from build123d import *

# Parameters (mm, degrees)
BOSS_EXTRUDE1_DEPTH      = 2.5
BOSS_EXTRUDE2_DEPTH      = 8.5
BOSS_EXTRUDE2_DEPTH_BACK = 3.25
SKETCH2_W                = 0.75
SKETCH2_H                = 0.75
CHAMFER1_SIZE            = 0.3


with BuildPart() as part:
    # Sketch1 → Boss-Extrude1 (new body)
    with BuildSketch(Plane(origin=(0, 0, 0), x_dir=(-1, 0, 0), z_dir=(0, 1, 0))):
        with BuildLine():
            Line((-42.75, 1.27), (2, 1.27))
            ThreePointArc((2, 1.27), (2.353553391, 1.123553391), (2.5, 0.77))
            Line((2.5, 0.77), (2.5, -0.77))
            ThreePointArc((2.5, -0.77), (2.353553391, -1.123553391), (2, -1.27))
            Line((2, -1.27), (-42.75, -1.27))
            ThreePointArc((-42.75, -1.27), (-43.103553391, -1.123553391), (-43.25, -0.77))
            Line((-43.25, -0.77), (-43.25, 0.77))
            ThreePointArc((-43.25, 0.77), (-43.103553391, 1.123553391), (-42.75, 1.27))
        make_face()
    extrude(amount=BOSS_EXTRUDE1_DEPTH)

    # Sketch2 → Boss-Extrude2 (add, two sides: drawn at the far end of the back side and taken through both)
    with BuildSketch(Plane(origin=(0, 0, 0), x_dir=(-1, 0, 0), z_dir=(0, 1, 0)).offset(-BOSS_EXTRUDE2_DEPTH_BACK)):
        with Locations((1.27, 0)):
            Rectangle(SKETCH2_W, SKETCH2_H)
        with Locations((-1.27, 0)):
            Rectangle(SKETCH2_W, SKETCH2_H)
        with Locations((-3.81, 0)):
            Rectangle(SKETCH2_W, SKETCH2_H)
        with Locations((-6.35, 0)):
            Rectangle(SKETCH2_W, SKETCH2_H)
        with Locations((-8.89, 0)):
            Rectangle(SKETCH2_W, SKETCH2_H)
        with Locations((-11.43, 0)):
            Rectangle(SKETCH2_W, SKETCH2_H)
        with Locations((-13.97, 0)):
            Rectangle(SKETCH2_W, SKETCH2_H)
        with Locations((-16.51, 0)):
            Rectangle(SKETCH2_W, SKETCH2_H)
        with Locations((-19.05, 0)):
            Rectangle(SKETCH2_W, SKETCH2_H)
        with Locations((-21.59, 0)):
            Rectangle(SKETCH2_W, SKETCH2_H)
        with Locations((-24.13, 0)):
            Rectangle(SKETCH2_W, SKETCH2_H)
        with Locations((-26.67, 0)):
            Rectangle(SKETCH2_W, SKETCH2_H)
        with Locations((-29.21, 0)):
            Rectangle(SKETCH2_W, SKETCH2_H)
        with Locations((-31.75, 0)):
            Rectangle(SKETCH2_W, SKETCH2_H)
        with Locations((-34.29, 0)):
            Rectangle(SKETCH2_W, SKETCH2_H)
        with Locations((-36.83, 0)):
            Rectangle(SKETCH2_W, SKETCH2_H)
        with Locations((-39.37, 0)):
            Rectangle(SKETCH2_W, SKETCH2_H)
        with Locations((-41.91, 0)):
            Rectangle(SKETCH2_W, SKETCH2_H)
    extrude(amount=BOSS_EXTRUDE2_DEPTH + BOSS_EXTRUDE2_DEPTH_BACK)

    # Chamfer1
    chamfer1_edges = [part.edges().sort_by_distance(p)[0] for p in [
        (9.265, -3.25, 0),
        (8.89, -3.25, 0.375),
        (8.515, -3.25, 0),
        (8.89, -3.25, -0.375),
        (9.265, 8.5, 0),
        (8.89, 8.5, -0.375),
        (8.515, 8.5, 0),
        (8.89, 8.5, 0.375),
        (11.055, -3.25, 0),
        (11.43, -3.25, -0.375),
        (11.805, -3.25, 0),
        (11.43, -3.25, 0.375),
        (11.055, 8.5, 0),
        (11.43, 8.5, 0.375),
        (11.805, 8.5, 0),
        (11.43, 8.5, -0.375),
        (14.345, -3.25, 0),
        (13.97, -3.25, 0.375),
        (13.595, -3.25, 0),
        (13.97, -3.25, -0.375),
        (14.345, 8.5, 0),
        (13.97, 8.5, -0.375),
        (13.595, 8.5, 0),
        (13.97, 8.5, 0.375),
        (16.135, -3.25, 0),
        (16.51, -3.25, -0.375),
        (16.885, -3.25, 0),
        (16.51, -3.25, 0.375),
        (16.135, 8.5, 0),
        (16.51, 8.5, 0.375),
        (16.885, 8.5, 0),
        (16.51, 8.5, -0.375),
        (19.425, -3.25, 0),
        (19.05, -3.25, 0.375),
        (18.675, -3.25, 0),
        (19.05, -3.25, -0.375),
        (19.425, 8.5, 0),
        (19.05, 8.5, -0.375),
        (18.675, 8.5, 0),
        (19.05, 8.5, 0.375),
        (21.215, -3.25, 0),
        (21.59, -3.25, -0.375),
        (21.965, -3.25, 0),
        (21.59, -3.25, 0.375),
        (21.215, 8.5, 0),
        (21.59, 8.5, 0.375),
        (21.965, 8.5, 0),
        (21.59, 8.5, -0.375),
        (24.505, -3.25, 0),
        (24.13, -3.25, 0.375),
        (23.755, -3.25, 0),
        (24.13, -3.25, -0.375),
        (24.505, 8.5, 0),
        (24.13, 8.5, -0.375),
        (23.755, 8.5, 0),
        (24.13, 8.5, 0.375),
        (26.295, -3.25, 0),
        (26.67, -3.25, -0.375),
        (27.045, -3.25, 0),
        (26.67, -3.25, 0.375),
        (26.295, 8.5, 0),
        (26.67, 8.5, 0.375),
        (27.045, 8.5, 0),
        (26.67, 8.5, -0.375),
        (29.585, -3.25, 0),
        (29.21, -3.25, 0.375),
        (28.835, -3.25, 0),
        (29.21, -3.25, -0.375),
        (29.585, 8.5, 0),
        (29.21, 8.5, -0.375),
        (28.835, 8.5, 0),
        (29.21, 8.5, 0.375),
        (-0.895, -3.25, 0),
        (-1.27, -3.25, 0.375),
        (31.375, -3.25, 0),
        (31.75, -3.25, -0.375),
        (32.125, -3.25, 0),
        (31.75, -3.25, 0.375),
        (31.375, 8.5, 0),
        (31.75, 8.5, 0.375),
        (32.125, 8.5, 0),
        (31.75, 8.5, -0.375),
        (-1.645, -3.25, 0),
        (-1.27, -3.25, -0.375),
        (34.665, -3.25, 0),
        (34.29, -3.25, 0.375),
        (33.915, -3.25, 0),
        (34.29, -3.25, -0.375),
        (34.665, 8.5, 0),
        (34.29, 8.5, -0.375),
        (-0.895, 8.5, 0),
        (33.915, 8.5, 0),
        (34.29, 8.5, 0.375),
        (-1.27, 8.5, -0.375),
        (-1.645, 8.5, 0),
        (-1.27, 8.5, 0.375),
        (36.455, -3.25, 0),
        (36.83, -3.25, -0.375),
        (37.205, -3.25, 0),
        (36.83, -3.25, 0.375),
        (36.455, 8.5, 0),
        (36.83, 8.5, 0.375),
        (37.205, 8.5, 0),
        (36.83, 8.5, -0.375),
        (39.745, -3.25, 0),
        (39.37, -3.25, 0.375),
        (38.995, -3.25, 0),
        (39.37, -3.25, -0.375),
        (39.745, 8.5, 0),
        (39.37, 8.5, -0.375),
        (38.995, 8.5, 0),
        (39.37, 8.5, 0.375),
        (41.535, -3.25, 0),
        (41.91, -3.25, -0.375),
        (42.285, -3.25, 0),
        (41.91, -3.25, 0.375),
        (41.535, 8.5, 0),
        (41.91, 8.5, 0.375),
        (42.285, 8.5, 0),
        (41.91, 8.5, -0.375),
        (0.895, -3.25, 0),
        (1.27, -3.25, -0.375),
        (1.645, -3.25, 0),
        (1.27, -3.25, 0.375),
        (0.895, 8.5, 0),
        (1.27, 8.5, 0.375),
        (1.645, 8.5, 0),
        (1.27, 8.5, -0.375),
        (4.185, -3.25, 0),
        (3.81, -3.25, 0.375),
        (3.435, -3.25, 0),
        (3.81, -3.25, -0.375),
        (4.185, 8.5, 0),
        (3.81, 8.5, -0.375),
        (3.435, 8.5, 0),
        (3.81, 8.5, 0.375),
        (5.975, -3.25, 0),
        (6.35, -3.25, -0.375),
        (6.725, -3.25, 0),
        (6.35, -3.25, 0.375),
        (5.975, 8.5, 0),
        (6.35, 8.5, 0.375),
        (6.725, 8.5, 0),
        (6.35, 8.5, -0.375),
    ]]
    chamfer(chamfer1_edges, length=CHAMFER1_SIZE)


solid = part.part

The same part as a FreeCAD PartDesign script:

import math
import FreeCAD as App
import Part
import Sketcher

V = App.Vector
Q = App.Units.Quantity


def edges_at(feature, points):
    """Names of the edges that pass closest to the given points."""
    edges = feature.Shape.Edges
    near = lambda p: min(range(len(edges)), key=lambda i: edges[i].distToShape(Part.Vertex(*p))[0])
    return sorted({f"Edge{near(p) + 1}" for p in points})

doc = App.newDocument("Part")
body = doc.addObject("PartDesign::Body", "Body")

# Sketch on XZ plane
sketch1 = doc.addObject("Sketcher::SketchObject", "Sketch")
body.addObject(sketch1)
sketch1.AttachmentSupport = (doc.XZ_Plane, [""])
sketch1.MapMode = "FlatFace"
sketch1.addGeometry(Part.LineSegment(V(-2, 1.27, 0), V(42.75, 1.27, 0)), False)
sketch1.addGeometry(Part.ArcOfCircle(Part.Circle(V(42.75, 0.77, 0), V(0, 0, 1), 0.5), math.radians(0), math.radians(90)), False)
sketch1.addGeometry(Part.LineSegment(V(43.25, 0.77, 0), V(43.25, -0.77, 0)), False)
sketch1.addGeometry(Part.ArcOfCircle(Part.Circle(V(42.75, -0.77, 0), V(0, 0, 1), 0.5), math.radians(-90), math.radians(0)), False)
sketch1.addGeometry(Part.LineSegment(V(42.75, -1.27, 0), V(-2, -1.27, 0)), False)
sketch1.addGeometry(Part.ArcOfCircle(Part.Circle(V(-2, -0.77, 0), V(0, 0, 1), 0.5), math.radians(180), math.radians(270)), False)
sketch1.addGeometry(Part.LineSegment(V(-2.5, -0.77, 0), V(-2.5, 0.77, 0)), False)
sketch1.addGeometry(Part.ArcOfCircle(Part.Circle(V(-2, 0.77, 0), V(0, 0, 1), 0.5), math.radians(90), math.radians(180)), False)
sketch1.addConstraint(Sketcher.Constraint("Tangent", 0, 2, 1, 2))
sketch1.addConstraint(Sketcher.Constraint("Tangent", 1, 1, 2, 1))
sketch1.addConstraint(Sketcher.Constraint("Tangent", 2, 2, 3, 2))
sketch1.addConstraint(Sketcher.Constraint("Tangent", 3, 1, 4, 1))
sketch1.addConstraint(Sketcher.Constraint("Tangent", 4, 2, 5, 2))
sketch1.addConstraint(Sketcher.Constraint("Tangent", 5, 1, 6, 1))
sketch1.addConstraint(Sketcher.Constraint("Tangent", 6, 2, 7, 2))
sketch1.addConstraint(Sketcher.Constraint("Tangent", 7, 1, 0, 1))
sketch1.addConstraint(Sketcher.Constraint("Horizontal", 0))
sketch1.addConstraint(Sketcher.Constraint("Vertical", 2))
sketch1.addConstraint(Sketcher.Constraint("Horizontal", 4))
sketch1.addConstraint(Sketcher.Constraint("Vertical", 6))
sketch1.addConstraint(Sketcher.Constraint("Equal", 1, 3))
sketch1.addConstraint(Sketcher.Constraint("Equal", 3, 5))
sketch1.addConstraint(Sketcher.Constraint("Equal", 5, 7))
sketch1.addConstraint(Sketcher.Constraint("Radius", 1, Q("0.5 mm")))
sketch1.addConstraint(Sketcher.Constraint("DistanceX", 5, 3, -1, 1, Q("2 mm")))
sketch1.addConstraint(Sketcher.Constraint("DistanceX", 0, 1, 0, 2, Q("44.75 mm")))
sketch1.addConstraint(Sketcher.Constraint("DistanceY", 2, 2, 2, 1, Q("1.54 mm")))
sketch1.addConstraint(Sketcher.Constraint("DistanceY", -1, 1, 1, 3, Q("0.77 mm")))
pad1 = doc.addObject("PartDesign::Pad", "Pad")
body.addObject(pad1)
pad1.Profile = sketch1
pad1.Length = 2.5
pad1.Reversed = True

# Sketch on XZ plane
sketch2 = doc.addObject("Sketcher::SketchObject", "Sketch001")
body.addObject(sketch2)
sketch2.AttachmentSupport = (doc.XZ_Plane, [""])
sketch2.MapMode = "FlatFace"
sketch2.addGeometry(Part.LineSegment(V(-0.895, 0.375, 0), V(-0.895, -0.375, 0)), False)
sketch2.addGeometry(Part.LineSegment(V(-0.895, -0.375, 0), V(-1.645, -0.375, 0)), False)
sketch2.addGeometry(Part.LineSegment(V(-1.645, -0.375, 0), V(-1.645, 0.375, 0)), False)
sketch2.addGeometry(Part.LineSegment(V(-1.645, 0.375, 0), V(-0.895, 0.375, 0)), False)
sketch2.addGeometry(Part.LineSegment(V(1.645, 0.375, 0), V(1.645, -0.375, 0)), False)
sketch2.addGeometry(Part.LineSegment(V(1.645, -0.375, 0), V(0.895, -0.375, 0)), False)
sketch2.addGeometry(Part.LineSegment(V(0.895, -0.375, 0), V(0.895, 0.375, 0)), False)
sketch2.addGeometry(Part.LineSegment(V(0.895, 0.375, 0), V(1.645, 0.375, 0)), False)
sketch2.addGeometry(Part.LineSegment(V(4.185, 0.375, 0), V(4.185, -0.375, 0)), False)
sketch2.addGeometry(Part.LineSegment(V(4.185, -0.375, 0), V(3.435, -0.375, 0)), False)
sketch2.addGeometry(Part.LineSegment(V(3.435, -0.375, 0), V(3.435, 0.375, 0)), False)
sketch2.addGeometry(Part.LineSegment(V(3.435, 0.375, 0), V(4.185, 0.375, 0)), False)
sketch2.addGeometry(Part.LineSegment(V(6.725, 0.375, 0), V(6.725, -0.375, 0)), False)
sketch2.addGeometry(Part.LineSegment(V(6.725, -0.375, 0), V(5.975, -0.375, 0)), False)
sketch2.addGeometry(Part.LineSegment(V(5.975, -0.375, 0), V(5.975, 0.375, 0)), False)
sketch2.addGeometry(Part.LineSegment(V(5.975, 0.375, 0), V(6.725, 0.375, 0)), False)
sketch2.addGeometry(Part.LineSegment(V(9.265, 0.375, 0), V(9.265, -0.375, 0)), False)
sketch2.addGeometry(Part.LineSegment(V(9.265, -0.375, 0), V(8.515, -0.375, 0)), False)
sketch2.addGeometry(Part.LineSegment(V(8.515, -0.375, 0), V(8.515, 0.375, 0)), False)
sketch2.addGeometry(Part.LineSegment(V(8.515, 0.375, 0), V(9.265, 0.375, 0)), False)
sketch2.addGeometry(Part.LineSegment(V(11.805, 0.375, 0), V(11.805, -0.375, 0)), False)
sketch2.addGeometry(Part.LineSegment(V(11.805, -0.375, 0), V(11.055, -0.375, 0)), False)
sketch2.addGeometry(Part.LineSegment(V(11.055, -0.375, 0), V(11.055, 0.375, 0)), False)
sketch2.addGeometry(Part.LineSegment(V(11.055, 0.375, 0), V(11.805, 0.375, 0)), False)
sketch2.addGeometry(Part.LineSegment(V(14.345, 0.375, 0), V(14.345, -0.375, 0)), False)
sketch2.addGeometry(Part.LineSegment(V(14.345, -0.375, 0), V(13.595, -0.375, 0)), False)
sketch2.addGeometry(Part.LineSegment(V(13.595, -0.375, 0), V(13.595, 0.375, 0)), False)
sketch2.addGeometry(Part.LineSegment(V(13.595, 0.375, 0), V(14.345, 0.375, 0)), False)
sketch2.addGeometry(Part.LineSegment(V(16.885, 0.375, 0), V(16.885, -0.375, 0)), False)
sketch2.addGeometry(Part.LineSegment(V(16.885, -0.375, 0), V(16.135, -0.375, 0)), False)
sketch2.addGeometry(Part.LineSegment(V(16.135, -0.375, 0), V(16.135, 0.375, 0)), False)
sketch2.addGeometry(Part.LineSegment(V(16.135, 0.375, 0), V(16.885, 0.375, 0)), False)
sketch2.addGeometry(Part.LineSegment(V(19.425, 0.375, 0), V(19.425, -0.375, 0)), False)
sketch2.addGeometry(Part.LineSegment(V(19.425, -0.375, 0), V(18.675, -0.375, 0)), False)
sketch2.addGeometry(Part.LineSegment(V(18.675, -0.375, 0), V(18.675, 0.375, 0)), False)
sketch2.addGeometry(Part.LineSegment(V(18.675, 0.375, 0), V(19.425, 0.375, 0)), False)
sketch2.addGeometry(Part.LineSegment(V(21.965, 0.375, 0), V(21.965, -0.375, 0)), False)
sketch2.addGeometry(Part.LineSegment(V(21.965, -0.375, 0), V(21.215, -0.375, 0)), False)
sketch2.addGeometry(Part.LineSegment(V(21.215, -0.375, 0), V(21.215, 0.375, 0)), False)
sketch2.addGeometry(Part.LineSegment(V(21.215, 0.375, 0), V(21.965, 0.375, 0)), False)
sketch2.addGeometry(Part.LineSegment(V(24.505, 0.375, 0), V(24.505, -0.375, 0)), False)
sketch2.addGeometry(Part.LineSegment(V(24.505, -0.375, 0), V(23.755, -0.375, 0)), False)
sketch2.addGeometry(Part.LineSegment(V(23.755, -0.375, 0), V(23.755, 0.375, 0)), False)
sketch2.addGeometry(Part.LineSegment(V(23.755, 0.375, 0), V(24.505, 0.375, 0)), False)
sketch2.addGeometry(Part.LineSegment(V(27.045, 0.375, 0), V(27.045, -0.375, 0)), False)
sketch2.addGeometry(Part.LineSegment(V(27.045, -0.375, 0), V(26.295, -0.375, 0)), False)
sketch2.addGeometry(Part.LineSegment(V(26.295, -0.375, 0), V(26.295, 0.375, 0)), False)
sketch2.addGeometry(Part.LineSegment(V(26.295, 0.375, 0), V(27.045, 0.375, 0)), False)
sketch2.addGeometry(Part.LineSegment(V(29.585, 0.375, 0), V(29.585, -0.375, 0)), False)
sketch2.addGeometry(Part.LineSegment(V(29.585, -0.375, 0), V(28.835, -0.375, 0)), False)
sketch2.addGeometry(Part.LineSegment(V(28.835, -0.375, 0), V(28.835, 0.375, 0)), False)
sketch2.addGeometry(Part.LineSegment(V(28.835, 0.375, 0), V(29.585, 0.375, 0)), False)
sketch2.addGeometry(Part.LineSegment(V(32.125, 0.375, 0), V(32.125, -0.375, 0)), False)
sketch2.addGeometry(Part.LineSegment(V(32.125, -0.375, 0), V(31.375, -0.375, 0)), False)
sketch2.addGeometry(Part.LineSegment(V(31.375, -0.375, 0), V(31.375, 0.375, 0)), False)
sketch2.addGeometry(Part.LineSegment(V(31.375, 0.375, 0), V(32.125, 0.375, 0)), False)
sketch2.addGeometry(Part.LineSegment(V(34.665, 0.375, 0), V(34.665, -0.375, 0)), False)
sketch2.addGeometry(Part.LineSegment(V(34.665, -0.375, 0), V(33.915, -0.375, 0)), False)
sketch2.addGeometry(Part.LineSegment(V(33.915, -0.375, 0), V(33.915, 0.375, 0)), False)
sketch2.addGeometry(Part.LineSegment(V(33.915, 0.375, 0), V(34.665, 0.375, 0)), False)
sketch2.addGeometry(Part.LineSegment(V(37.205, 0.375, 0), V(37.205, -0.375, 0)), False)
sketch2.addGeometry(Part.LineSegment(V(37.205, -0.375, 0), V(36.455, -0.375, 0)), False)
sketch2.addGeometry(Part.LineSegment(V(36.455, -0.375, 0), V(36.455, 0.375, 0)), False)
sketch2.addGeometry(Part.LineSegment(V(36.455, 0.375, 0), V(37.205, 0.375, 0)), False)
sketch2.addGeometry(Part.LineSegment(V(39.745, 0.375, 0), V(39.745, -0.375, 0)), False)
sketch2.addGeometry(Part.LineSegment(V(39.745, -0.375, 0), V(38.995, -0.375, 0)), False)
sketch2.addGeometry(Part.LineSegment(V(38.995, -0.375, 0), V(38.995, 0.375, 0)), False)
sketch2.addGeometry(Part.LineSegment(V(38.995, 0.375, 0), V(39.745, 0.375, 0)), False)
sketch2.addGeometry(Part.LineSegment(V(42.285, 0.375, 0), V(42.285, -0.375, 0)), False)
sketch2.addGeometry(Part.LineSegment(V(42.285, -0.375, 0), V(41.535, -0.375, 0)), False)
sketch2.addGeometry(Part.LineSegment(V(41.535, -0.375, 0), V(41.535, 0.375, 0)), False)
sketch2.addGeometry(Part.LineSegment(V(41.535, 0.375, 0), V(42.285, 0.375, 0)), False)
sketch2.addConstraint(Sketcher.Constraint("Coincident", 0, 2, 1, 1))
sketch2.addConstraint(Sketcher.Constraint("Coincident", 1, 2, 2, 1))
sketch2.addConstraint(Sketcher.Constraint("Coincident", 2, 2, 3, 1))
sketch2.addConstraint(Sketcher.Constraint("Coincident", 3, 2, 0, 1))
sketch2.addConstraint(Sketcher.Constraint("Coincident", 4, 2, 5, 1))
sketch2.addConstraint(Sketcher.Constraint("Coincident", 5, 2, 6, 1))
sketch2.addConstraint(Sketcher.Constraint("Coincident", 6, 2, 7, 1))
sketch2.addConstraint(Sketcher.Constraint("Coincident", 7, 2, 4, 1))
sketch2.addConstraint(Sketcher.Constraint("Coincident", 8, 2, 9, 1))
sketch2.addConstraint(Sketcher.Constraint("Coincident", 9, 2, 10, 1))
sketch2.addConstraint(Sketcher.Constraint("Coincident", 10, 2, 11, 1))
sketch2.addConstraint(Sketcher.Constraint("Coincident", 11, 2, 8, 1))
sketch2.addConstraint(Sketcher.Constraint("Coincident", 12, 2, 13, 1))
sketch2.addConstraint(Sketcher.Constraint("Coincident", 13, 2, 14, 1))
sketch2.addConstraint(Sketcher.Constraint("Coincident", 14, 2, 15, 1))
sketch2.addConstraint(Sketcher.Constraint("Coincident", 15, 2, 12, 1))
sketch2.addConstraint(Sketcher.Constraint("Coincident", 16, 2, 17, 1))
sketch2.addConstraint(Sketcher.Constraint("Coincident", 17, 2, 18, 1))
sketch2.addConstraint(Sketcher.Constraint("Coincident", 18, 2, 19, 1))
sketch2.addConstraint(Sketcher.Constraint("Coincident", 19, 2, 16, 1))
sketch2.addConstraint(Sketcher.Constraint("Coincident", 20, 2, 21, 1))
sketch2.addConstraint(Sketcher.Constraint("Coincident", 21, 2, 22, 1))
sketch2.addConstraint(Sketcher.Constraint("Coincident", 22, 2, 23, 1))
sketch2.addConstraint(Sketcher.Constraint("Coincident", 23, 2, 20, 1))
sketch2.addConstraint(Sketcher.Constraint("Coincident", 24, 2, 25, 1))
sketch2.addConstraint(Sketcher.Constraint("Coincident", 25, 2, 26, 1))
sketch2.addConstraint(Sketcher.Constraint("Coincident", 26, 2, 27, 1))
sketch2.addConstraint(Sketcher.Constraint("Coincident", 27, 2, 24, 1))
sketch2.addConstraint(Sketcher.Constraint("Coincident", 28, 2, 29, 1))
sketch2.addConstraint(Sketcher.Constraint("Coincident", 29, 2, 30, 1))
sketch2.addConstraint(Sketcher.Constraint("Coincident", 30, 2, 31, 1))
sketch2.addConstraint(Sketcher.Constraint("Coincident", 31, 2, 28, 1))
sketch2.addConstraint(Sketcher.Constraint("Coincident", 32, 2, 33, 1))
sketch2.addConstraint(Sketcher.Constraint("Coincident", 33, 2, 34, 1))
sketch2.addConstraint(Sketcher.Constraint("Coincident", 34, 2, 35, 1))
sketch2.addConstraint(Sketcher.Constraint("Coincident", 35, 2, 32, 1))
sketch2.addConstraint(Sketcher.Constraint("Coincident", 36, 2, 37, 1))
sketch2.addConstraint(Sketcher.Constraint("Coincident", 37, 2, 38, 1))
sketch2.addConstraint(Sketcher.Constraint("Coincident", 38, 2, 39, 1))
sketch2.addConstraint(Sketcher.Constraint("Coincident", 39, 2, 36, 1))
sketch2.addConstraint(Sketcher.Constraint("Coincident", 40, 2, 41, 1))
sketch2.addConstraint(Sketcher.Constraint("Coincident", 41, 2, 42, 1))
sketch2.addConstraint(Sketcher.Constraint("Coincident", 42, 2, 43, 1))
sketch2.addConstraint(Sketcher.Constraint("Coincident", 43, 2, 40, 1))
sketch2.addConstraint(Sketcher.Constraint("Coincident", 44, 2, 45, 1))
sketch2.addConstraint(Sketcher.Constraint("Coincident", 45, 2, 46, 1))
sketch2.addConstraint(Sketcher.Constraint("Coincident", 46, 2, 47, 1))
sketch2.addConstraint(Sketcher.Constraint("Coincident", 47, 2, 44, 1))
sketch2.addConstraint(Sketcher.Constraint("Coincident", 48, 2, 49, 1))
sketch2.addConstraint(Sketcher.Constraint("Coincident", 49, 2, 50, 1))
sketch2.addConstraint(Sketcher.Constraint("Coincident", 50, 2, 51, 1))
sketch2.addConstraint(Sketcher.Constraint("Coincident", 51, 2, 48, 1))
sketch2.addConstraint(Sketcher.Constraint("Coincident", 52, 2, 53, 1))
sketch2.addConstraint(Sketcher.Constraint("Coincident", 53, 2, 54, 1))
sketch2.addConstraint(Sketcher.Constraint("Coincident", 54, 2, 55, 1))
sketch2.addConstraint(Sketcher.Constraint("Coincident", 55, 2, 52, 1))
sketch2.addConstraint(Sketcher.Constraint("Coincident", 56, 2, 57, 1))
sketch2.addConstraint(Sketcher.Constraint("Coincident", 57, 2, 58, 1))
sketch2.addConstraint(Sketcher.Constraint("Coincident", 58, 2, 59, 1))
sketch2.addConstraint(Sketcher.Constraint("Coincident", 59, 2, 56, 1))
sketch2.addConstraint(Sketcher.Constraint("Coincident", 60, 2, 61, 1))
sketch2.addConstraint(Sketcher.Constraint("Coincident", 61, 2, 62, 1))
sketch2.addConstraint(Sketcher.Constraint("Coincident", 62, 2, 63, 1))
sketch2.addConstraint(Sketcher.Constraint("Coincident", 63, 2, 60, 1))
sketch2.addConstraint(Sketcher.Constraint("Coincident", 64, 2, 65, 1))
sketch2.addConstraint(Sketcher.Constraint("Coincident", 65, 2, 66, 1))
sketch2.addConstraint(Sketcher.Constraint("Coincident", 66, 2, 67, 1))
sketch2.addConstraint(Sketcher.Constraint("Coincident", 67, 2, 64, 1))
sketch2.addConstraint(Sketcher.Constraint("Coincident", 68, 2, 69, 1))
sketch2.addConstraint(Sketcher.Constraint("Coincident", 69, 2, 70, 1))
sketch2.addConstraint(Sketcher.Constraint("Coincident", 70, 2, 71, 1))
sketch2.addConstraint(Sketcher.Constraint("Coincident", 71, 2, 68, 1))
sketch2.addConstraint(Sketcher.Constraint("Vertical", 0))
sketch2.addConstraint(Sketcher.Constraint("Horizontal", 1))
sketch2.addConstraint(Sketcher.Constraint("Vertical", 2))
sketch2.addConstraint(Sketcher.Constraint("Horizontal", 3))
sketch2.addConstraint(Sketcher.Constraint("Vertical", 4))
sketch2.addConstraint(Sketcher.Constraint("Horizontal", 5))
sketch2.addConstraint(Sketcher.Constraint("Vertical", 6))
sketch2.addConstraint(Sketcher.Constraint("Horizontal", 7))
sketch2.addConstraint(Sketcher.Constraint("Vertical", 8))
sketch2.addConstraint(Sketcher.Constraint("Horizontal", 9))
sketch2.addConstraint(Sketcher.Constraint("Vertical", 10))
sketch2.addConstraint(Sketcher.Constraint("Horizontal", 11))
sketch2.addConstraint(Sketcher.Constraint("Vertical", 12))
sketch2.addConstraint(Sketcher.Constraint("Horizontal", 13))
sketch2.addConstraint(Sketcher.Constraint("Vertical", 14))
sketch2.addConstraint(Sketcher.Constraint("Horizontal", 15))
sketch2.addConstraint(Sketcher.Constraint("Vertical", 16))
sketch2.addConstraint(Sketcher.Constraint("Horizontal", 17))
sketch2.addConstraint(Sketcher.Constraint("Vertical", 18))
sketch2.addConstraint(Sketcher.Constraint("Horizontal", 19))
sketch2.addConstraint(Sketcher.Constraint("Vertical", 20))
sketch2.addConstraint(Sketcher.Constraint("Horizontal", 21))
sketch2.addConstraint(Sketcher.Constraint("Vertical", 22))
sketch2.addConstraint(Sketcher.Constraint("Horizontal", 23))
sketch2.addConstraint(Sketcher.Constraint("Vertical", 24))
sketch2.addConstraint(Sketcher.Constraint("Horizontal", 25))
sketch2.addConstraint(Sketcher.Constraint("Vertical", 26))
sketch2.addConstraint(Sketcher.Constraint("Horizontal", 27))
sketch2.addConstraint(Sketcher.Constraint("Vertical", 28))
sketch2.addConstraint(Sketcher.Constraint("Horizontal", 29))
sketch2.addConstraint(Sketcher.Constraint("Vertical", 30))
sketch2.addConstraint(Sketcher.Constraint("Horizontal", 31))
sketch2.addConstraint(Sketcher.Constraint("Vertical", 32))
sketch2.addConstraint(Sketcher.Constraint("Horizontal", 33))
sketch2.addConstraint(Sketcher.Constraint("Vertical", 34))
sketch2.addConstraint(Sketcher.Constraint("Horizontal", 35))
sketch2.addConstraint(Sketcher.Constraint("Vertical", 36))
sketch2.addConstraint(Sketcher.Constraint("Horizontal", 37))
sketch2.addConstraint(Sketcher.Constraint("Vertical", 38))
sketch2.addConstraint(Sketcher.Constraint("Horizontal", 39))
sketch2.addConstraint(Sketcher.Constraint("Vertical", 40))
sketch2.addConstraint(Sketcher.Constraint("Horizontal", 41))
sketch2.addConstraint(Sketcher.Constraint("Vertical", 42))
sketch2.addConstraint(Sketcher.Constraint("Horizontal", 43))
sketch2.addConstraint(Sketcher.Constraint("Vertical", 44))
sketch2.addConstraint(Sketcher.Constraint("Horizontal", 45))
sketch2.addConstraint(Sketcher.Constraint("Vertical", 46))
sketch2.addConstraint(Sketcher.Constraint("Horizontal", 47))
sketch2.addConstraint(Sketcher.Constraint("Vertical", 48))
sketch2.addConstraint(Sketcher.Constraint("Horizontal", 49))
sketch2.addConstraint(Sketcher.Constraint("Vertical", 50))
sketch2.addConstraint(Sketcher.Constraint("Horizontal", 51))
sketch2.addConstraint(Sketcher.Constraint("Vertical", 52))
sketch2.addConstraint(Sketcher.Constraint("Horizontal", 53))
sketch2.addConstraint(Sketcher.Constraint("Vertical", 54))
sketch2.addConstraint(Sketcher.Constraint("Horizontal", 55))
sketch2.addConstraint(Sketcher.Constraint("Vertical", 56))
sketch2.addConstraint(Sketcher.Constraint("Horizontal", 57))
sketch2.addConstraint(Sketcher.Constraint("Vertical", 58))
sketch2.addConstraint(Sketcher.Constraint("Horizontal", 59))
sketch2.addConstraint(Sketcher.Constraint("Vertical", 60))
sketch2.addConstraint(Sketcher.Constraint("Horizontal", 61))
sketch2.addConstraint(Sketcher.Constraint("Vertical", 62))
sketch2.addConstraint(Sketcher.Constraint("Horizontal", 63))
sketch2.addConstraint(Sketcher.Constraint("Vertical", 64))
sketch2.addConstraint(Sketcher.Constraint("Horizontal", 65))
sketch2.addConstraint(Sketcher.Constraint("Vertical", 66))
sketch2.addConstraint(Sketcher.Constraint("Horizontal", 67))
sketch2.addConstraint(Sketcher.Constraint("Vertical", 68))
sketch2.addConstraint(Sketcher.Constraint("Horizontal", 69))
sketch2.addConstraint(Sketcher.Constraint("Vertical", 70))
sketch2.addConstraint(Sketcher.Constraint("Horizontal", 71))
sketch2.addConstraint(Sketcher.Constraint("Symmetric", 2, 2, 4, 2, -1, 1))
sketch2.addConstraint(Sketcher.Constraint("Symmetric", 0, 2, 6, 2, -1, 1))
sketch2.addConstraint(Sketcher.Constraint("Horizontal", 1, 2, 4, 2))
sketch2.addConstraint(Sketcher.Constraint("Horizontal", 5, 2, 8, 2))
sketch2.addConstraint(Sketcher.Constraint("Horizontal", 7, 2, 10, 2))
sketch2.addConstraint(Sketcher.Constraint("Horizontal", 9, 2, 12, 2))
sketch2.addConstraint(Sketcher.Constraint("Horizontal", 11, 2, 14, 2))
sketch2.addConstraint(Sketcher.Constraint("Horizontal", 13, 2, 16, 2))
sketch2.addConstraint(Sketcher.Constraint("Horizontal", 15, 2, 18, 2))
sketch2.addConstraint(Sketcher.Constraint("Horizontal", 17, 2, 20, 2))
sketch2.addConstraint(Sketcher.Constraint("Horizontal", 19, 2, 22, 2))
sketch2.addConstraint(Sketcher.Constraint("Horizontal", 21, 2, 24, 2))
sketch2.addConstraint(Sketcher.Constraint("Horizontal", 23, 2, 26, 2))
sketch2.addConstraint(Sketcher.Constraint("Horizontal", 25, 2, 28, 2))
sketch2.addConstraint(Sketcher.Constraint("Horizontal", 27, 2, 30, 2))
sketch2.addConstraint(Sketcher.Constraint("Horizontal", 29, 2, 32, 2))
sketch2.addConstraint(Sketcher.Constraint("Horizontal", 31, 2, 34, 2))
sketch2.addConstraint(Sketcher.Constraint("Horizontal", 33, 2, 36, 2))
sketch2.addConstraint(Sketcher.Constraint("Horizontal", 35, 2, 38, 2))
sketch2.addConstraint(Sketcher.Constraint("Horizontal", 37, 2, 40, 2))
sketch2.addConstraint(Sketcher.Constraint("Horizontal", 39, 2, 42, 2))
sketch2.addConstraint(Sketcher.Constraint("Horizontal", 41, 2, 44, 2))
sketch2.addConstraint(Sketcher.Constraint("Horizontal", 43, 2, 46, 2))
sketch2.addConstraint(Sketcher.Constraint("Horizontal", 45, 2, 48, 2))
sketch2.addConstraint(Sketcher.Constraint("Horizontal", 47, 2, 50, 2))
sketch2.addConstraint(Sketcher.Constraint("Horizontal", 49, 2, 52, 2))
sketch2.addConstraint(Sketcher.Constraint("Horizontal", 51, 2, 54, 2))
sketch2.addConstraint(Sketcher.Constraint("Horizontal", 53, 2, 56, 2))
sketch2.addConstraint(Sketcher.Constraint("Horizontal", 55, 2, 58, 2))
sketch2.addConstraint(Sketcher.Constraint("Horizontal", 57, 2, 60, 2))
sketch2.addConstraint(Sketcher.Constraint("Horizontal", 59, 2, 62, 2))
sketch2.addConstraint(Sketcher.Constraint("Horizontal", 61, 2, 64, 2))
sketch2.addConstraint(Sketcher.Constraint("Horizontal", 63, 2, 66, 2))
sketch2.addConstraint(Sketcher.Constraint("Horizontal", 65, 2, 68, 2))
sketch2.addConstraint(Sketcher.Constraint("Horizontal", 67, 2, 70, 2))
sketch2.addConstraint(Sketcher.Constraint("Equal", 7, 9))
sketch2.addConstraint(Sketcher.Constraint("Equal", 11, 13))
sketch2.addConstraint(Sketcher.Constraint("Equal", 15, 17))
sketch2.addConstraint(Sketcher.Constraint("Equal", 19, 21))
sketch2.addConstraint(Sketcher.Constraint("Equal", 23, 25))
sketch2.addConstraint(Sketcher.Constraint("Equal", 27, 29))
sketch2.addConstraint(Sketcher.Constraint("Equal", 31, 33))
sketch2.addConstraint(Sketcher.Constraint("Equal", 35, 37))
sketch2.addConstraint(Sketcher.Constraint("Equal", 39, 41))
sketch2.addConstraint(Sketcher.Constraint("Equal", 43, 45))
sketch2.addConstraint(Sketcher.Constraint("Equal", 47, 49))
sketch2.addConstraint(Sketcher.Constraint("Equal", 51, 53))
sketch2.addConstraint(Sketcher.Constraint("Equal", 55, 57))
sketch2.addConstraint(Sketcher.Constraint("Equal", 59, 61))
sketch2.addConstraint(Sketcher.Constraint("Equal", 63, 65))
sketch2.addConstraint(Sketcher.Constraint("Equal", 67, 69))
sketch2.addConstraint(Sketcher.Constraint("Equal", 71, 0))
sketch2.addConstraint(Sketcher.Constraint("DistanceX", 1, 2, 1, 1, Q("0.75 mm")))
sketch2.addConstraint(Sketcher.Constraint("DistanceX", 0, 2, -1, 1, Q("0.895 mm")))
sketch2.addConstraint(Sketcher.Constraint("DistanceX", -1, 1, 8, 2, Q("4.185 mm")))
sketch2.addConstraint(Sketcher.Constraint("DistanceX", -1, 1, 12, 2, Q("6.725 mm")))
sketch2.addConstraint(Sketcher.Constraint("DistanceX", -1, 1, 16, 2, Q("9.265 mm")))
sketch2.addConstraint(Sketcher.Constraint("DistanceX", -1, 1, 20, 2, Q("11.805 mm")))
sketch2.addConstraint(Sketcher.Constraint("DistanceX", -1, 1, 24, 2, Q("14.345 mm")))
sketch2.addConstraint(Sketcher.Constraint("DistanceX", -1, 1, 28, 2, Q("16.885 mm")))
sketch2.addConstraint(Sketcher.Constraint("DistanceX", -1, 1, 32, 2, Q("19.425 mm")))
sketch2.addConstraint(Sketcher.Constraint("DistanceX", -1, 1, 36, 2, Q("21.965 mm")))
sketch2.addConstraint(Sketcher.Constraint("DistanceX", -1, 1, 40, 2, Q("24.505 mm")))
sketch2.addConstraint(Sketcher.Constraint("DistanceX", -1, 1, 44, 2, Q("27.045 mm")))
sketch2.addConstraint(Sketcher.Constraint("DistanceX", -1, 1, 48, 2, Q("29.585 mm")))
sketch2.addConstraint(Sketcher.Constraint("DistanceX", -1, 1, 52, 2, Q("32.125 mm")))
sketch2.addConstraint(Sketcher.Constraint("DistanceX", -1, 1, 56, 2, Q("34.665 mm")))
sketch2.addConstraint(Sketcher.Constraint("DistanceX", -1, 1, 60, 2, Q("37.205 mm")))
sketch2.addConstraint(Sketcher.Constraint("DistanceX", -1, 1, 64, 2, Q("39.745 mm")))
sketch2.addConstraint(Sketcher.Constraint("DistanceX", -1, 1, 68, 2, Q("42.285 mm")))
pad2 = doc.addObject("PartDesign::Pad", "Pad001")
body.addObject(pad2)
pad2.Profile = sketch2
pad2.Type = "TwoLengths"
pad2.Length = 8.5
pad2.Length2 = 3.25
pad2.Reversed = True
doc.recompute()

chamfer = doc.addObject("PartDesign::Chamfer", "Chamfer")
body.addObject(chamfer)
chamfer.Base = (pad2, edges_at(pad2, [
    (9.265, -3.25, 0),
    (8.89, -3.25, 0.375),
    (8.515, -3.25, 0),
    (8.89, -3.25, -0.375),
    (9.265, 8.5, 0),
    (8.89, 8.5, -0.375),
    (8.515, 8.5, 0),
    (8.89, 8.5, 0.375),
    (11.055, -3.25, 0),
    (11.43, -3.25, -0.375),
    (11.805, -3.25, 0),
    (11.43, -3.25, 0.375),
    (11.055, 8.5, 0),
    (11.43, 8.5, 0.375),
    (11.805, 8.5, 0),
    (11.43, 8.5, -0.375),
    (14.345, -3.25, 0),
    (13.97, -3.25, 0.375),
    (13.595, -3.25, 0),
    (13.97, -3.25, -0.375),
    (14.345, 8.5, 0),
    (13.97, 8.5, -0.375),
    (13.595, 8.5, 0),
    (13.97, 8.5, 0.375),
    (16.135, -3.25, 0),
    (16.51, -3.25, -0.375),
    (16.885, -3.25, 0),
    (16.51, -3.25, 0.375),
    (16.135, 8.5, 0),
    (16.51, 8.5, 0.375),
    (16.885, 8.5, 0),
    (16.51, 8.5, -0.375),
    (19.425, -3.25, 0),
    (19.05, -3.25, 0.375),
    (18.675, -3.25, 0),
    (19.05, -3.25, -0.375),
    (19.425, 8.5, 0),
    (19.05, 8.5, -0.375),
    (18.675, 8.5, 0),
    (19.05, 8.5, 0.375),
    (21.215, -3.25, 0),
    (21.59, -3.25, -0.375),
    (21.965, -3.25, 0),
    (21.59, -3.25, 0.375),
    (21.215, 8.5, 0),
    (21.59, 8.5, 0.375),
    (21.965, 8.5, 0),
    (21.59, 8.5, -0.375),
    (24.505, -3.25, 0),
    (24.13, -3.25, 0.375),
    (23.755, -3.25, 0),
    (24.13, -3.25, -0.375),
    (24.505, 8.5, 0),
    (24.13, 8.5, -0.375),
    (23.755, 8.5, 0),
    (24.13, 8.5, 0.375),
    (26.295, -3.25, 0),
    (26.67, -3.25, -0.375),
    (27.045, -3.25, 0),
    (26.67, -3.25, 0.375),
    (26.295, 8.5, 0),
    (26.67, 8.5, 0.375),
    (27.045, 8.5, 0),
    (26.67, 8.5, -0.375),
    (29.585, -3.25, 0),
    (29.21, -3.25, 0.375),
    (28.835, -3.25, 0),
    (29.21, -3.25, -0.375),
    (29.585, 8.5, 0),
    (29.21, 8.5, -0.375),
    (28.835, 8.5, 0),
    (29.21, 8.5, 0.375),
    (-0.895, -3.25, 0),
    (-1.27, -3.25, 0.375),
    (31.375, -3.25, 0),
    (31.75, -3.25, -0.375),
    (32.125, -3.25, 0),
    (31.75, -3.25, 0.375),
    (31.375, 8.5, 0),
    (31.75, 8.5, 0.375),
    (32.125, 8.5, 0),
    (31.75, 8.5, -0.375),
    (-1.645, -3.25, 0),
    (-1.27, -3.25, -0.375),
    (34.665, -3.25, 0),
    (34.29, -3.25, 0.375),
    (33.915, -3.25, 0),
    (34.29, -3.25, -0.375),
    (34.665, 8.5, 0),
    (34.29, 8.5, -0.375),
    (-0.895, 8.5, 0),
    (33.915, 8.5, 0),
    (34.29, 8.5, 0.375),
    (-1.27, 8.5, -0.375),
    (-1.645, 8.5, 0),
    (-1.27, 8.5, 0.375),
    (36.455, -3.25, 0),
    (36.83, -3.25, -0.375),
    (37.205, -3.25, 0),
    (36.83, -3.25, 0.375),
    (36.455, 8.5, 0),
    (36.83, 8.5, 0.375),
    (37.205, 8.5, 0),
    (36.83, 8.5, -0.375),
    (39.745, -3.25, 0),
    (39.37, -3.25, 0.375),
    (38.995, -3.25, 0),
    (39.37, -3.25, -0.375),
    (39.745, 8.5, 0),
    (39.37, 8.5, -0.375),
    (38.995, 8.5, 0),
    (39.37, 8.5, 0.375),
    (41.535, -3.25, 0),
    (41.91, -3.25, -0.375),
    (42.285, -3.25, 0),
    (41.91, -3.25, 0.375),
    (41.535, 8.5, 0),
    (41.91, 8.5, 0.375),
    (42.285, 8.5, 0),
    (41.91, 8.5, -0.375),
    (0.895, -3.25, 0),
    (1.27, -3.25, -0.375),
    (1.645, -3.25, 0),
    (1.27, -3.25, 0.375),
    (0.895, 8.5, 0),
    (1.27, 8.5, 0.375),
    (1.645, 8.5, 0),
    (1.27, 8.5, -0.375),
    (4.185, -3.25, 0),
    (3.81, -3.25, 0.375),
    (3.435, -3.25, 0),
    (3.81, -3.25, -0.375),
    (4.185, 8.5, 0),
    (3.81, 8.5, -0.375),
    (3.435, 8.5, 0),
    (3.81, 8.5, 0.375),
    (5.975, -3.25, 0),
    (6.35, -3.25, -0.375),
    (6.725, -3.25, 0),
    (6.35, -3.25, 0.375),
    (5.975, 8.5, 0),
    (6.35, 8.5, 0.375),
    (6.725, 8.5, 0),
    (6.35, 8.5, -0.375),
]))
chamfer.Size = 0.3

doc.recompute()
